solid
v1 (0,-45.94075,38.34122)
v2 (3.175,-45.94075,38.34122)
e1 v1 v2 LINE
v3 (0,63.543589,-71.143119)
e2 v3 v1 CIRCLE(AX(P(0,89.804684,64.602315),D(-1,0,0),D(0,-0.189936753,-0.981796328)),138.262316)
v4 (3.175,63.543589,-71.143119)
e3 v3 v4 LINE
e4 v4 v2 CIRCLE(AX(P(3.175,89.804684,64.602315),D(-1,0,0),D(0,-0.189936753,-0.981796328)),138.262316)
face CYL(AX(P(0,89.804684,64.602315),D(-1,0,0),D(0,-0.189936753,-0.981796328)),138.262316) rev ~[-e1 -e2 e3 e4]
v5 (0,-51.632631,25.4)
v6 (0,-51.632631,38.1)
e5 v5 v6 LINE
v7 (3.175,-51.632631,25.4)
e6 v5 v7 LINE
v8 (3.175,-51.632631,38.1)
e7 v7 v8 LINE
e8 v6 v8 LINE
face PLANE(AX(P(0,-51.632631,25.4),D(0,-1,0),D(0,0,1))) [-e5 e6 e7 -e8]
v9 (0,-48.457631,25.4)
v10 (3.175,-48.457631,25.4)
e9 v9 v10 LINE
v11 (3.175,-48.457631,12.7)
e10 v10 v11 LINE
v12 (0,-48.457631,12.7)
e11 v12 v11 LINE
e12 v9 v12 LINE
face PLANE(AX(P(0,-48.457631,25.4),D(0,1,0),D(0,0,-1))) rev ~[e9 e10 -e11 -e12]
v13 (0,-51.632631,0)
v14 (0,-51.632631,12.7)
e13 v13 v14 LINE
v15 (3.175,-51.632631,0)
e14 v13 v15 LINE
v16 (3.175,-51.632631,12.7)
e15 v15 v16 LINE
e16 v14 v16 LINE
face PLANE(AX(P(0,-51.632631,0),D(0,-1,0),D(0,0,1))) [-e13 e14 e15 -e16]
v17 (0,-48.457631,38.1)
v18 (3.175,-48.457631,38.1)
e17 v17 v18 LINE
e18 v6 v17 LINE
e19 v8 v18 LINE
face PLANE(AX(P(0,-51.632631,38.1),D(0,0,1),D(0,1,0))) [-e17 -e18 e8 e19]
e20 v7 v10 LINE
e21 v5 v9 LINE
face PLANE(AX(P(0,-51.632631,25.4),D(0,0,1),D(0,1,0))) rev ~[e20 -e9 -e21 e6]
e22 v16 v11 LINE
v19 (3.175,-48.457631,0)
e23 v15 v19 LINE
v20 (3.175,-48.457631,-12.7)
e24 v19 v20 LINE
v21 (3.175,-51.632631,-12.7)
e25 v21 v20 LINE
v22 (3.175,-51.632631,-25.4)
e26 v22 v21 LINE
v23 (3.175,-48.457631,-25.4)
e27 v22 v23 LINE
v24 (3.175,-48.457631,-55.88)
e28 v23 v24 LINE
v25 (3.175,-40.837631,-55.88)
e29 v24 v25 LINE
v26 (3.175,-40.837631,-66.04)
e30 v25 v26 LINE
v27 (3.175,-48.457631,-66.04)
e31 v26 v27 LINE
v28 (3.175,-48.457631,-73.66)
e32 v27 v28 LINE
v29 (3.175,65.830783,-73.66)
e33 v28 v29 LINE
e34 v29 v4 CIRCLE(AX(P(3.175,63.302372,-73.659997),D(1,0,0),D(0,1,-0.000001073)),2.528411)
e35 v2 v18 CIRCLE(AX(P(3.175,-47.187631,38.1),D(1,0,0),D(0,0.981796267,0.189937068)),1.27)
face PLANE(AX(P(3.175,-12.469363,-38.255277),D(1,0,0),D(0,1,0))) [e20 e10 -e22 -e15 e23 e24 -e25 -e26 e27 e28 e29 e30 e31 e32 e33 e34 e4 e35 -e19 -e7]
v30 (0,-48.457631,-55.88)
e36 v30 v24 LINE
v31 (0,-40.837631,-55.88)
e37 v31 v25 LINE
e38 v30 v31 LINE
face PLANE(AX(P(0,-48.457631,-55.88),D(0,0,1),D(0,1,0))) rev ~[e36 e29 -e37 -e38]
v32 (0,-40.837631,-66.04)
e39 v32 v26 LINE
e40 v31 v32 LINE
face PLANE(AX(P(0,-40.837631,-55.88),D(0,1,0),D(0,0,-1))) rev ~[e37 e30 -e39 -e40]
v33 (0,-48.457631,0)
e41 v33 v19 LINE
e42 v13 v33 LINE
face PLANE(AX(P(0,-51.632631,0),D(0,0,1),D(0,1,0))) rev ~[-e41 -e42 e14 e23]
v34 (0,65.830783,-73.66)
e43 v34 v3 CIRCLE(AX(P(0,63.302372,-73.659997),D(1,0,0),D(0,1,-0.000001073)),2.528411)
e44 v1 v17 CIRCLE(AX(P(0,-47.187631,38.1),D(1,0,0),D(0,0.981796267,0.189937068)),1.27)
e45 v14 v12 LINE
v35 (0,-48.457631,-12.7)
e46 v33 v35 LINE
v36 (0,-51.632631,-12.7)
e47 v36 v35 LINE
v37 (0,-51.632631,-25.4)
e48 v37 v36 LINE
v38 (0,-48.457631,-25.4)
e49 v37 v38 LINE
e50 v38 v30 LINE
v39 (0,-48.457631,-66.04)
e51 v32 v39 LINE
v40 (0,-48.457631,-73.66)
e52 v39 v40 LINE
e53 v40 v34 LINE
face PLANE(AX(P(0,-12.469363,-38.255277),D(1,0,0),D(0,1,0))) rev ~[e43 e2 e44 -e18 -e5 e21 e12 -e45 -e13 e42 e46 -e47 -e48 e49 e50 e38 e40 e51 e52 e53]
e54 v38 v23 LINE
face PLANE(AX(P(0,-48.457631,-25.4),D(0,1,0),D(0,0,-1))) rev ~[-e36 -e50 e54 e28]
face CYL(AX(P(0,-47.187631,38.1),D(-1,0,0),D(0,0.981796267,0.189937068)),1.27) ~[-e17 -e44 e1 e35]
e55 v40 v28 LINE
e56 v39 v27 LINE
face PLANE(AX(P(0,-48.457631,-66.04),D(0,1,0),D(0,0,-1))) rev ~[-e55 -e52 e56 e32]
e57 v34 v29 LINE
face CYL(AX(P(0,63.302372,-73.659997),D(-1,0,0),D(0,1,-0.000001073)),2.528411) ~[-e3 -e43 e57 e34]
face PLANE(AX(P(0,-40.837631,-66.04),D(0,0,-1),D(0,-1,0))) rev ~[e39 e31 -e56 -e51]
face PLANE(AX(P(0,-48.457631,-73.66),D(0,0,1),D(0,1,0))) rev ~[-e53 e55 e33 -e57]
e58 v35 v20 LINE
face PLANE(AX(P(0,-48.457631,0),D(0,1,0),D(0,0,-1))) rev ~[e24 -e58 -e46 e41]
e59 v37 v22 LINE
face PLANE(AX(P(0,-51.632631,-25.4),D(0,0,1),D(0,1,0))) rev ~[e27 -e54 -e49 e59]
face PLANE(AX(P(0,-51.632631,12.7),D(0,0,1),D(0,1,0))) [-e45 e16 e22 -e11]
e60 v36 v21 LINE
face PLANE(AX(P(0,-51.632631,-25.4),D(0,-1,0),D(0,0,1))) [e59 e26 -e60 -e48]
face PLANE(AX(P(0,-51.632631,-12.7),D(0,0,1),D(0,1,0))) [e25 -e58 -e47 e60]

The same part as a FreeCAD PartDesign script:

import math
import FreeCAD as App
import Part
import Sketcher
from FreeCAD import Vector
Q = App.Units.Quantity

doc = App.newDocument("Part")
body = doc.addObject("PartDesign::Body", "Body")

sketch1 = body.newObject("Sketcher::SketchObject", "Sketch")
sketch1.AttachmentSupport = (doc.getObject("YZ_Plane"), [""])
sketch1.MapMode = "FlatFace"
sketch1.addGeometry([
    Part.ArcOfCircle(Part.Circle(Vector(-47.187631, 38.1, 0), Vector(0, 0, 1), 1.27), math.radians(10.949112), math.radians(179.999998)),
    Part.LineSegment(Vector(-48.457631, 38.1, 0), Vector(-51.632631, 38.1, 0)),
    Part.LineSegment(Vector(-51.632631, 38.1, 0), Vector(-51.632631, 25.4, 0)),
    Part.LineSegment(Vector(-51.632631, 25.4, 0), Vector(-48.457631, 25.4, 0)),
    Part.LineSegment(Vector(-48.457631, 25.4, 0), Vector(-48.457631, 12.7, 0)),
    Part.LineSegment(Vector(-48.457631, 12.7, 0), Vector(-51.632631, 12.7, 0)),
    Part.LineSegment(Vector(-51.632631, 12.7, 0), Vector(-51.632631, 0, 0)),
    Part.LineSegment(Vector(-51.632631, 0, 0), Vector(-48.457631, 0, 0)),
    Part.LineSegment(Vector(-48.457631, 0, 0), Vector(-48.457631, -12.7, 0)),
    Part.LineSegment(Vector(-48.457631, -12.7, 0), Vector(-51.632631, -12.7, 0)),
    Part.LineSegment(Vector(-51.632631, -12.7, 0), Vector(-51.632631, -25.4, 0)),
    Part.LineSegment(Vector(-51.632631, -25.4, 0), Vector(-48.457631, -25.4, 0)),
    Part.LineSegment(Vector(-48.457631, -25.4, 0), Vector(-48.457631, -55.88, 0)),
    Part.LineSegment(Vector(-48.457631, -55.88, 0), Vector(-40.837631, -55.88, 0)),
    Part.LineSegment(Vector(-40.837631, -55.88, 0), Vector(-40.837631, -66.04, 0)),
    Part.LineSegment(Vector(-40.837631, -66.04, 0), Vector(-48.457631, -66.04, 0)),
    Part.LineSegment(Vector(-48.457631, -66.04, 0), Vector(-48.457631, -73.66, 0)),
    Part.LineSegment(Vector(-48.457631, -73.66, 0), Vector(65.830783, -73.66, 0)),
    Part.ArcOfCircle(Part.Circle(Vector(63.302372, -73.659997, 0), Vector(0, 0, 1), 2.528411), math.radians(-0.000062), math.radians(84.525508)),
    Part.ArcOfCircle(Part.Circle(Vector(89.804684, 64.602315, 0), Vector(0, 0, 1), 138.262316), math.radians(-169.050907), math.radians(-100.949093)),
], False)
sketch1.addConstraint([
    Sketcher.Constraint("Coincident", 0, 2, 1, 1),
    Sketcher.Constraint("Coincident", 1, 2, 2, 1),
    Sketcher.Constraint("Coincident", 2, 2, 3, 1),
    Sketcher.Constraint("Coincident", 3, 2, 4, 1),
    Sketcher.Constraint("Coincident", 4, 2, 5, 1),
    Sketcher.Constraint("Coincident", 5, 2, 6, 1),
    Sketcher.Constraint("Coincident", 6, 2, 7, 1),
    Sketcher.Constraint("Coincident", 7, 2, 8, 1),
    Sketcher.Constraint("Coincident", 8, 2, 9, 1),
    Sketcher.Constraint("Coincident", 9, 2, 10, 1),
    Sketcher.Constraint("Coincident", 10, 2, 11, 1),
    Sketcher.Constraint("Coincident", 11, 2, 12, 1),
    Sketcher.Constraint("Coincident", 12, 2, 13, 1),
    Sketcher.Constraint("Coincident", 13, 2, 14, 1),
    Sketcher.Constraint("Coincident", 14, 2, 15, 1),
    Sketcher.Constraint("Coincident", 15, 2, 16, 1),
    Sketcher.Constraint("Coincident", 16, 2, 17, 1),
    Sketcher.Constraint("Coincident", 17, 2, 18, 1),
    Sketcher.Constraint("Coincident", 18, 2, 19, 2),
    Sketcher.Constraint("Tangent", 19, 1, 0, 1),
    Sketcher.Constraint("Horizontal", 1),
    Sketcher.Constraint("Vertical", 2),
    Sketcher.Constraint("Horizontal", 3),
    Sketcher.Constraint("Vertical", 4),
    Sketcher.Constraint("Horizontal", 5),
    Sketcher.Constraint("Vertical", 6),
    Sketcher.Constraint("Horizontal", 7),
    Sketcher.Constraint("Vertical", 8),
    Sketcher.Constraint("Horizontal", 9),
    Sketcher.Constraint("Vertical", 10),
    Sketcher.Constraint("Horizontal", 11),
    Sketcher.Constraint("Vertical", 12),
    Sketcher.Constraint("Horizontal", 13),
    Sketcher.Constraint("Vertical", 14),
    Sketcher.Constraint("Horizontal", 15),
    Sketcher.Constraint("Vertical", 16),
    Sketcher.Constraint("Horizontal", 17),
    Sketcher.Constraint("Symmetric", 4, 2, 8, 2, -1),
    Sketcher.Constraint("Symmetric", 2, 2, 10, 2, -1),
    Sketcher.Constraint("PointOnObject", 6, 2, -1),
    Sketcher.Constraint("Vertical", 0, 2, 3, 2),
    Sketcher.Constraint("Vertical", 2, 2, 5, 2),
    Sketcher.Constraint("Vertical", 8, 2, 11, 2),
    Sketcher.Constraint("Vertical", 12, 2, 15, 2),
    Sketcher.Constraint("Equal", 2, 4),
    Sketcher.Constraint("Equal", 4, 6),
    Sketcher.Constraint("Equal", 15, 16),
    Sketcher.Constraint("Radius", 0, Q("0.05 in")),
    Sketcher.Constraint("DistanceX", 13, 1, 13, 2, Q("0.3 in")),
    Sketcher.Constraint("DistanceY", 2, 2, 2, 1, Q("0.5 in")),
    Sketcher.Constraint("DistanceY", 12, 2, 12, 1, Q("1.2 in")),
    Sketcher.Constraint("DistanceY", 14, 2, 14, 1, Q("0.4 in")),
    Sketcher.Constraint("DistanceY", 4, 2, 0, 3, Q("1 in")),
    Sketcher.Constraint("DistanceY", 18, 3, -1, 1, Q("2.8999999 in")),
    Sketcher.Constraint("DistanceX", 0, 2, 18, 3, Q("4.4000001 in")),
    Sketcher.Constraint("DistanceX", 1, 2, 1, 1, Q("0.125 in")),
    Sketcher.Constraint("Radius", 18, Q("2.528411 mm")),
    Sketcher.Constraint("Radius", 19, Q("138.262316 mm")),
    Sketcher.Constraint("DistanceX", 0, 3, -1, 1, Q("47.187631 mm")),
    Sketcher.Constraint("DistanceX", -1, 1, 18, 2, Q("63.543589 mm")),
])
pad1 = body.newObject("PartDesign::Pad", "Pad")
pad1.Profile = sketch1
pad1.Length = Q("0.125 in")

doc.recompute()
